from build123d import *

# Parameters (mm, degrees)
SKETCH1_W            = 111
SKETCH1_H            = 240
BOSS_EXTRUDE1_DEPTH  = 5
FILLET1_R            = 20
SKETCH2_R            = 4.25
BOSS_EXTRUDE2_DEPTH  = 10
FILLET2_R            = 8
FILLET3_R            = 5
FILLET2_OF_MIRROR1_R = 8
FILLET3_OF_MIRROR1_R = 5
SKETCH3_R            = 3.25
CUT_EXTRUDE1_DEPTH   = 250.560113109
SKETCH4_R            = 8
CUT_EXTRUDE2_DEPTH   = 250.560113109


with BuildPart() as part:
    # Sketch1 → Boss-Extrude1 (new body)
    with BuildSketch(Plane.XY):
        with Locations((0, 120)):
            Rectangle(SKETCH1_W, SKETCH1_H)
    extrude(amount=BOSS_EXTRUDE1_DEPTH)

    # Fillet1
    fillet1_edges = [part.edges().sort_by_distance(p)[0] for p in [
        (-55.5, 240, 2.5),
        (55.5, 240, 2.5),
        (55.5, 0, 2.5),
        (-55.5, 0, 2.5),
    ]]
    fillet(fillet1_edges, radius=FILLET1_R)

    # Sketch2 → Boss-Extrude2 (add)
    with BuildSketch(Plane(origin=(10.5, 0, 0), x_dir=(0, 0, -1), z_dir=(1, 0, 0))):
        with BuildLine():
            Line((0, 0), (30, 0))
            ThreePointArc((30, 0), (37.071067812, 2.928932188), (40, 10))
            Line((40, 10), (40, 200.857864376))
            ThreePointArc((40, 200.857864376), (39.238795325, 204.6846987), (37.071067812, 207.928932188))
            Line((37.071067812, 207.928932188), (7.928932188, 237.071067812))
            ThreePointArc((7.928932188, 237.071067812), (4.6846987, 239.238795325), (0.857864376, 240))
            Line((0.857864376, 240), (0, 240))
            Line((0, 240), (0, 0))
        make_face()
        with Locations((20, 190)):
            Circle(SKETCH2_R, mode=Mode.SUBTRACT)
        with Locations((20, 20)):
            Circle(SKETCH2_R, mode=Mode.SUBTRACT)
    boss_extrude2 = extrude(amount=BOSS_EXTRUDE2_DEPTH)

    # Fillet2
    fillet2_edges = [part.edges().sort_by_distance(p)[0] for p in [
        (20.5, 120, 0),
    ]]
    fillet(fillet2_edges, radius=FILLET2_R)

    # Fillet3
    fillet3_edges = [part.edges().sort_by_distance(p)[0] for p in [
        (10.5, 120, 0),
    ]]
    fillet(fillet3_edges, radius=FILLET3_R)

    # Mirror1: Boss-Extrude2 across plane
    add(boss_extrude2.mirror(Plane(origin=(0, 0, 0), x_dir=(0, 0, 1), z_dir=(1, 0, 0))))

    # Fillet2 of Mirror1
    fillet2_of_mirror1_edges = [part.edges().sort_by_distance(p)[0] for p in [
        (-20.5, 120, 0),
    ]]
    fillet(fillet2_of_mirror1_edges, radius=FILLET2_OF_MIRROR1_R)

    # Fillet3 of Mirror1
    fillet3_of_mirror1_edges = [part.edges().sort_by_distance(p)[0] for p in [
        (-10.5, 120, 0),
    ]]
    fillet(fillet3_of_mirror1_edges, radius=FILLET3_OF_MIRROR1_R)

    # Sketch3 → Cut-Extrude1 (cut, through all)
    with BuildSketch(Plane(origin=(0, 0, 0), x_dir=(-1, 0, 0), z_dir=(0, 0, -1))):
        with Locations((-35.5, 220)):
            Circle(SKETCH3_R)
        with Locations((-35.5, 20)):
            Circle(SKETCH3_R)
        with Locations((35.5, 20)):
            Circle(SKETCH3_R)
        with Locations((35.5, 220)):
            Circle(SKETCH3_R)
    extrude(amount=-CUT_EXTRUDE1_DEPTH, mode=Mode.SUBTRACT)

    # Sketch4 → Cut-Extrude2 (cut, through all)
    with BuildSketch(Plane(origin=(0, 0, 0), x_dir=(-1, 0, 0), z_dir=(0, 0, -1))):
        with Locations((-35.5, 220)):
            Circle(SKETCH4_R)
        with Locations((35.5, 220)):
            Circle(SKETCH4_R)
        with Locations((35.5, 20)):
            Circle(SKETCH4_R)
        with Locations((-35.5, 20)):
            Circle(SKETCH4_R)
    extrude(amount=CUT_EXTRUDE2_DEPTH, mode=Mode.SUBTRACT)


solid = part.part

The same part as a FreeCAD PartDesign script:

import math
import FreeCAD as App
import Part
import Sketcher
Q = App.Units.Quantity


def edges_at(feature, points):
    """Names of the edges that pass closest to the given points."""
    edges = feature.Shape.Edges
    near = lambda p: min(range(len(edges)), key=lambda i: edges[i].distToShape(Part.Vertex(*p))[0])
    return sorted({f"Edge{near(p) + 1}" for p in points})

doc = App.newDocument("Part")
body = doc.addObject("PartDesign::Body", "Body")

sketch1 = body.newObject("Sketcher::SketchObject", "Sketch")
sketch1.AttachmentSupport = (doc.getObject("XY_Plane"), [""])
sketch1.MapMode = "FlatFace"
sketch1.addGeometry([
    Part.LineSegment(App.Vector(-56, 240, 0), App.Vector(-56, 0, 0)),
    Part.LineSegment(App.Vector(-56, 0, 0), App.Vector(56, 0, 0)),
    Part.LineSegment(App.Vector(56, 0, 0), App.Vector(56, 240, 0)),
    Part.LineSegment(App.Vector(56, 240, 0), App.Vector(-56, 240, 0)),
], False)
sketch1.addConstraint([
    Sketcher.Constraint("Coincident", 0, 2, 1, 1),
    Sketcher.Constraint("Coincident", 1, 2, 2, 1),
    Sketcher.Constraint("Coincident", 2, 2, 3, 1),
    Sketcher.Constraint("Coincident", 3, 2, 0, 1),
    Sketcher.Constraint("Vertical", 0),
    Sketcher.Constraint("Horizontal", 1),
    Sketcher.Constraint("Vertical", 2),
    Sketcher.Constraint("Horizontal", 3),
    Sketcher.Constraint("Symmetric", 0, 2, 1, 2, -1, 1),
    Sketcher.Constraint("DistanceX", 1, 1, 1, 2, Q("111 mm")),
    Sketcher.Constraint("DistanceY", 0, 2, 0, 1, Q("240 mm")),
])
pad1 = body.newObject("PartDesign::Pad", "Pad")
pad1.Profile = sketch1
pad1.Length = 5
doc.recompute()

fillet = body.newObject("PartDesign::Fillet", "Fillet")
fillet.Base = (pad1, edges_at(pad1, [
    (-55.5, 240, 2.5),
    (55.5, 240, 2.5),
    (55.5, 0, 2.5),
    (-55.5, 0, 2.5),
]))
fillet.Radius = 20

sketch2 = body.newObject("Sketcher::SketchObject", "Sketch001")
sketch2.AttachmentSupport = (doc.getObject("YZ_Plane"), [""])
sketch2.MapMode = "FlatFace"
sketch2.AttachmentOffset = App.Placement(App.Vector(0, 0, 10.5), App.Rotation())
sketch2.addGeometry([
    Part.LineSegment(App.Vector(0, 0, 0), App.Vector(0, -30, 0)),
    Part.ArcOfCircle(Part.Circle(App.Vector(10, -30, 0), App.Vector(0, 0, 1), 10), math.radians(180), math.radians(270)),
    Part.LineSegment(App.Vector(10, -40, 0), App.Vector(200.9, -40, 0)),
    Part.ArcOfCircle(Part.Circle(App.Vector(200.9, -30, 0), App.Vector(0, 0, 1), 10), math.radians(-90), math.radians(-45)),
    Part.LineSegment(App.Vector(207.9, -37.1, 0), App.Vector(237.1, -7.9, 0)),
    Part.ArcOfCircle(Part.Circle(App.Vector(230, -0.9, 0), App.Vector(0, 0, 1), 10), math.radians(-45), math.radians(0)),
    Part.LineSegment(App.Vector(240, -0.9, 0), App.Vector(240, 0, 0)),
    Part.LineSegment(App.Vector(240, 0, 0), App.Vector(0, 0, 0)),
    Part.Circle(App.Vector(20, -20, 0), App.Vector(0, 0, 1), 4.2),
    Part.Circle(App.Vector(190, -20, 0), App.Vector(0, 0, 1), 4.2),
], False)
sketch2.addConstraint([
    Sketcher.Constraint("Tangent", 0, 2, 1, 1),
    Sketcher.Constraint("Tangent", 1, 2, 2, 1),
    Sketcher.Constraint("Tangent", 2, 2, 3, 1),
    Sketcher.Constraint("Tangent", 3, 2, 4, 1),
    Sketcher.Constraint("Tangent", 4, 2, 5, 1),
    Sketcher.Constraint("Tangent", 5, 2, 6, 1),
    Sketcher.Constraint("Coincident", 6, 2, 7, 1),
    Sketcher.Constraint("Coincident", 7, 2, 0, 1),
    Sketcher.Constraint("Vertical", 0),
    Sketcher.Constraint("Horizontal", 2),
    Sketcher.Constraint("Vertical", 6),
    Sketcher.Constraint("Horizontal", 7),
    Sketcher.Constraint("Coincident", 7, 2, -1, 1),
    Sketcher.Constraint("Equal", 1, 3),
    Sketcher.Constraint("Equal", 3, 5),
    Sketcher.Constraint("Equal", 8, 9),
    Sketcher.Constraint("Horizontal", 8, 3, 9, 3),
    Sketcher.Constraint("Radius", 1, Q("10 mm")),
    Sketcher.Constraint("Diameter", 8, Q("8.5 mm")),
    Sketcher.Constraint("DistanceX", 7, 2, 7, 1, Q("240 mm")),
    Sketcher.Constraint("DistanceY", 0, 2, 0, 1, Q("30 mm")),
    Sketcher.Constraint("Angle", 4, Q("45 deg")),
    Sketcher.Constraint("DistanceX", -1, 1, 8, 3, Q("20 mm")),
    Sketcher.Constraint("DistanceY", 8, 3, -1, 1, Q("20 mm")),
    Sketcher.Constraint("DistanceX", -1, 1, 9, 3, Q("190 mm")),
    Sketcher.Constraint("DistanceX", 2, 1, 2, 2, Q("190.857864 mm")),
])
pad2 = body.newObject("PartDesign::Pad", "Pad001")
pad2.Profile = sketch2
pad2.Length = 10
doc.recompute()

fillet2 = body.newObject("PartDesign::Fillet", "Fillet001")
fillet2.Base = (pad2, edges_at(pad2, [(20.5, 120, 0)]))
fillet2.Radius = 8
doc.recompute()

fillet3 = body.newObject("PartDesign::Fillet", "Fillet002")
fillet3.Base = (fillet2, edges_at(fillet2, [(10.5, 120, 0)]))
fillet3.Radius = 5
doc.recompute()

mirrored = body.newObject("PartDesign::Mirrored", "Mirrored")
mirrored.Originals = [pad2]
mirrored.MirrorPlane = (doc.getObject("YZ_Plane"), [""])
body.Tip = mirrored
doc.recompute()

fillet4 = body.newObject("PartDesign::Fillet", "Fillet003")
fillet4.Base = (mirrored, edges_at(mirrored, [(-20.5, 120, 0)]))
fillet4.Radius = 8
doc.recompute()

fillet5 = body.newObject("PartDesign::Fillet", "Fillet004")
fillet5.Base = (fillet4, edges_at(fillet4, [(-10.5, 120, 0)]))
fillet5.Radius = 5

sketch3 = body.newObject("Sketcher::SketchObject", "Sketch002")
sketch3.AttachmentSupport = (doc.getObject("XY_Plane"), [""])
sketch3.MapMode = "FlatFace"
sketch3.addGeometry([
    Part.Circle(App.Vector(35.5, 220, 0), App.Vector(0, 0, 1), 3.2),
    Part.Circle(App.Vector(35.5, 20, 0), App.Vector(0, 0, 1), 3.2),
    Part.Circle(App.Vector(-35.5, 20, 0), App.Vector(0, 0, 1), 3.2),
    Part.Circle(App.Vector(-35.5, 220, 0), App.Vector(0, 0, 1), 3.2),
], False)
sketch3.addConstraint([
    Sketcher.Constraint("Equal", 0, 1),
    Sketcher.Constraint("Equal", 1, 2),
    Sketcher.Constraint("Equal", 2, 3),
    Sketcher.Constraint("Symmetric", 1, 3, 2, 3, -2),
    Sketcher.Constraint("Symmetric", 0, 3, 3, 3, -2),
    Sketcher.Constraint("Vertical", 0, 3, 1, 3),
    Sketcher.Constraint("Diameter", 0, Q("6.5 mm")),
    Sketcher.Constraint("DistanceY", -1, 1, 0, 3, Q("220 mm")),
    Sketcher.Constraint("DistanceY", -1, 1, 1, 3, Q("20 mm")),
    Sketcher.Constraint("DistanceX", 2, 3, 1, 3, Q("71 mm")),
])
pocket1 = body.newObject("PartDesign::Pocket", "Pocket")
pocket1.Profile = sketch3
pocket1.Type = "ThroughAll"
pocket1.Reversed = True

sketch4 = body.newObject("Sketcher::SketchObject", "Sketch003")
sketch4.AttachmentSupport = (doc.getObject("XY_Plane"), [""])
sketch4.MapMode = "FlatFace"
sketch4.addGeometry([
    Part.Circle(App.Vector(36, 220, 0), App.Vector(0, 0, 1), 8),
    Part.Circle(App.Vector(-36, 220, 0), App.Vector(0, 0, 1), 8),
    Part.Circle(App.Vector(-36, 20, 0), App.Vector(0, 0, 1), 8),
    Part.Circle(App.Vector(36, 20, 0), App.Vector(0, 0, 1), 8),
], False)
sketch4.addConstraint([
    Sketcher.Constraint("Equal", 0, 1),
    Sketcher.Constraint("Equal", 1, 2),
    Sketcher.Constraint("Equal", 2, 3),
    Sketcher.Constraint("Symmetric", 0, 3, 1, 3, -2),
    Sketcher.Constraint("Symmetric", 2, 3, 3, 3, -2),
    Sketcher.Constraint("Vertical", 1, 3, 2, 3),
    Sketcher.Constraint("Diameter", 0, Q("16 mm")),
    Sketcher.Constraint("DistanceY", -1, 1, 0, 3, Q("220 mm")),
    Sketcher.Constraint("DistanceY", -1, 1, 2, 3, Q("20 mm")),
    Sketcher.Constraint("DistanceX", 1, 3, 0, 3, Q("71 mm")),
])
pocket2 = body.newObject("PartDesign::Pocket", "Pocket001")
pocket2.Profile = sketch4
pocket2.Type = "ThroughAll"

doc.recompute()
